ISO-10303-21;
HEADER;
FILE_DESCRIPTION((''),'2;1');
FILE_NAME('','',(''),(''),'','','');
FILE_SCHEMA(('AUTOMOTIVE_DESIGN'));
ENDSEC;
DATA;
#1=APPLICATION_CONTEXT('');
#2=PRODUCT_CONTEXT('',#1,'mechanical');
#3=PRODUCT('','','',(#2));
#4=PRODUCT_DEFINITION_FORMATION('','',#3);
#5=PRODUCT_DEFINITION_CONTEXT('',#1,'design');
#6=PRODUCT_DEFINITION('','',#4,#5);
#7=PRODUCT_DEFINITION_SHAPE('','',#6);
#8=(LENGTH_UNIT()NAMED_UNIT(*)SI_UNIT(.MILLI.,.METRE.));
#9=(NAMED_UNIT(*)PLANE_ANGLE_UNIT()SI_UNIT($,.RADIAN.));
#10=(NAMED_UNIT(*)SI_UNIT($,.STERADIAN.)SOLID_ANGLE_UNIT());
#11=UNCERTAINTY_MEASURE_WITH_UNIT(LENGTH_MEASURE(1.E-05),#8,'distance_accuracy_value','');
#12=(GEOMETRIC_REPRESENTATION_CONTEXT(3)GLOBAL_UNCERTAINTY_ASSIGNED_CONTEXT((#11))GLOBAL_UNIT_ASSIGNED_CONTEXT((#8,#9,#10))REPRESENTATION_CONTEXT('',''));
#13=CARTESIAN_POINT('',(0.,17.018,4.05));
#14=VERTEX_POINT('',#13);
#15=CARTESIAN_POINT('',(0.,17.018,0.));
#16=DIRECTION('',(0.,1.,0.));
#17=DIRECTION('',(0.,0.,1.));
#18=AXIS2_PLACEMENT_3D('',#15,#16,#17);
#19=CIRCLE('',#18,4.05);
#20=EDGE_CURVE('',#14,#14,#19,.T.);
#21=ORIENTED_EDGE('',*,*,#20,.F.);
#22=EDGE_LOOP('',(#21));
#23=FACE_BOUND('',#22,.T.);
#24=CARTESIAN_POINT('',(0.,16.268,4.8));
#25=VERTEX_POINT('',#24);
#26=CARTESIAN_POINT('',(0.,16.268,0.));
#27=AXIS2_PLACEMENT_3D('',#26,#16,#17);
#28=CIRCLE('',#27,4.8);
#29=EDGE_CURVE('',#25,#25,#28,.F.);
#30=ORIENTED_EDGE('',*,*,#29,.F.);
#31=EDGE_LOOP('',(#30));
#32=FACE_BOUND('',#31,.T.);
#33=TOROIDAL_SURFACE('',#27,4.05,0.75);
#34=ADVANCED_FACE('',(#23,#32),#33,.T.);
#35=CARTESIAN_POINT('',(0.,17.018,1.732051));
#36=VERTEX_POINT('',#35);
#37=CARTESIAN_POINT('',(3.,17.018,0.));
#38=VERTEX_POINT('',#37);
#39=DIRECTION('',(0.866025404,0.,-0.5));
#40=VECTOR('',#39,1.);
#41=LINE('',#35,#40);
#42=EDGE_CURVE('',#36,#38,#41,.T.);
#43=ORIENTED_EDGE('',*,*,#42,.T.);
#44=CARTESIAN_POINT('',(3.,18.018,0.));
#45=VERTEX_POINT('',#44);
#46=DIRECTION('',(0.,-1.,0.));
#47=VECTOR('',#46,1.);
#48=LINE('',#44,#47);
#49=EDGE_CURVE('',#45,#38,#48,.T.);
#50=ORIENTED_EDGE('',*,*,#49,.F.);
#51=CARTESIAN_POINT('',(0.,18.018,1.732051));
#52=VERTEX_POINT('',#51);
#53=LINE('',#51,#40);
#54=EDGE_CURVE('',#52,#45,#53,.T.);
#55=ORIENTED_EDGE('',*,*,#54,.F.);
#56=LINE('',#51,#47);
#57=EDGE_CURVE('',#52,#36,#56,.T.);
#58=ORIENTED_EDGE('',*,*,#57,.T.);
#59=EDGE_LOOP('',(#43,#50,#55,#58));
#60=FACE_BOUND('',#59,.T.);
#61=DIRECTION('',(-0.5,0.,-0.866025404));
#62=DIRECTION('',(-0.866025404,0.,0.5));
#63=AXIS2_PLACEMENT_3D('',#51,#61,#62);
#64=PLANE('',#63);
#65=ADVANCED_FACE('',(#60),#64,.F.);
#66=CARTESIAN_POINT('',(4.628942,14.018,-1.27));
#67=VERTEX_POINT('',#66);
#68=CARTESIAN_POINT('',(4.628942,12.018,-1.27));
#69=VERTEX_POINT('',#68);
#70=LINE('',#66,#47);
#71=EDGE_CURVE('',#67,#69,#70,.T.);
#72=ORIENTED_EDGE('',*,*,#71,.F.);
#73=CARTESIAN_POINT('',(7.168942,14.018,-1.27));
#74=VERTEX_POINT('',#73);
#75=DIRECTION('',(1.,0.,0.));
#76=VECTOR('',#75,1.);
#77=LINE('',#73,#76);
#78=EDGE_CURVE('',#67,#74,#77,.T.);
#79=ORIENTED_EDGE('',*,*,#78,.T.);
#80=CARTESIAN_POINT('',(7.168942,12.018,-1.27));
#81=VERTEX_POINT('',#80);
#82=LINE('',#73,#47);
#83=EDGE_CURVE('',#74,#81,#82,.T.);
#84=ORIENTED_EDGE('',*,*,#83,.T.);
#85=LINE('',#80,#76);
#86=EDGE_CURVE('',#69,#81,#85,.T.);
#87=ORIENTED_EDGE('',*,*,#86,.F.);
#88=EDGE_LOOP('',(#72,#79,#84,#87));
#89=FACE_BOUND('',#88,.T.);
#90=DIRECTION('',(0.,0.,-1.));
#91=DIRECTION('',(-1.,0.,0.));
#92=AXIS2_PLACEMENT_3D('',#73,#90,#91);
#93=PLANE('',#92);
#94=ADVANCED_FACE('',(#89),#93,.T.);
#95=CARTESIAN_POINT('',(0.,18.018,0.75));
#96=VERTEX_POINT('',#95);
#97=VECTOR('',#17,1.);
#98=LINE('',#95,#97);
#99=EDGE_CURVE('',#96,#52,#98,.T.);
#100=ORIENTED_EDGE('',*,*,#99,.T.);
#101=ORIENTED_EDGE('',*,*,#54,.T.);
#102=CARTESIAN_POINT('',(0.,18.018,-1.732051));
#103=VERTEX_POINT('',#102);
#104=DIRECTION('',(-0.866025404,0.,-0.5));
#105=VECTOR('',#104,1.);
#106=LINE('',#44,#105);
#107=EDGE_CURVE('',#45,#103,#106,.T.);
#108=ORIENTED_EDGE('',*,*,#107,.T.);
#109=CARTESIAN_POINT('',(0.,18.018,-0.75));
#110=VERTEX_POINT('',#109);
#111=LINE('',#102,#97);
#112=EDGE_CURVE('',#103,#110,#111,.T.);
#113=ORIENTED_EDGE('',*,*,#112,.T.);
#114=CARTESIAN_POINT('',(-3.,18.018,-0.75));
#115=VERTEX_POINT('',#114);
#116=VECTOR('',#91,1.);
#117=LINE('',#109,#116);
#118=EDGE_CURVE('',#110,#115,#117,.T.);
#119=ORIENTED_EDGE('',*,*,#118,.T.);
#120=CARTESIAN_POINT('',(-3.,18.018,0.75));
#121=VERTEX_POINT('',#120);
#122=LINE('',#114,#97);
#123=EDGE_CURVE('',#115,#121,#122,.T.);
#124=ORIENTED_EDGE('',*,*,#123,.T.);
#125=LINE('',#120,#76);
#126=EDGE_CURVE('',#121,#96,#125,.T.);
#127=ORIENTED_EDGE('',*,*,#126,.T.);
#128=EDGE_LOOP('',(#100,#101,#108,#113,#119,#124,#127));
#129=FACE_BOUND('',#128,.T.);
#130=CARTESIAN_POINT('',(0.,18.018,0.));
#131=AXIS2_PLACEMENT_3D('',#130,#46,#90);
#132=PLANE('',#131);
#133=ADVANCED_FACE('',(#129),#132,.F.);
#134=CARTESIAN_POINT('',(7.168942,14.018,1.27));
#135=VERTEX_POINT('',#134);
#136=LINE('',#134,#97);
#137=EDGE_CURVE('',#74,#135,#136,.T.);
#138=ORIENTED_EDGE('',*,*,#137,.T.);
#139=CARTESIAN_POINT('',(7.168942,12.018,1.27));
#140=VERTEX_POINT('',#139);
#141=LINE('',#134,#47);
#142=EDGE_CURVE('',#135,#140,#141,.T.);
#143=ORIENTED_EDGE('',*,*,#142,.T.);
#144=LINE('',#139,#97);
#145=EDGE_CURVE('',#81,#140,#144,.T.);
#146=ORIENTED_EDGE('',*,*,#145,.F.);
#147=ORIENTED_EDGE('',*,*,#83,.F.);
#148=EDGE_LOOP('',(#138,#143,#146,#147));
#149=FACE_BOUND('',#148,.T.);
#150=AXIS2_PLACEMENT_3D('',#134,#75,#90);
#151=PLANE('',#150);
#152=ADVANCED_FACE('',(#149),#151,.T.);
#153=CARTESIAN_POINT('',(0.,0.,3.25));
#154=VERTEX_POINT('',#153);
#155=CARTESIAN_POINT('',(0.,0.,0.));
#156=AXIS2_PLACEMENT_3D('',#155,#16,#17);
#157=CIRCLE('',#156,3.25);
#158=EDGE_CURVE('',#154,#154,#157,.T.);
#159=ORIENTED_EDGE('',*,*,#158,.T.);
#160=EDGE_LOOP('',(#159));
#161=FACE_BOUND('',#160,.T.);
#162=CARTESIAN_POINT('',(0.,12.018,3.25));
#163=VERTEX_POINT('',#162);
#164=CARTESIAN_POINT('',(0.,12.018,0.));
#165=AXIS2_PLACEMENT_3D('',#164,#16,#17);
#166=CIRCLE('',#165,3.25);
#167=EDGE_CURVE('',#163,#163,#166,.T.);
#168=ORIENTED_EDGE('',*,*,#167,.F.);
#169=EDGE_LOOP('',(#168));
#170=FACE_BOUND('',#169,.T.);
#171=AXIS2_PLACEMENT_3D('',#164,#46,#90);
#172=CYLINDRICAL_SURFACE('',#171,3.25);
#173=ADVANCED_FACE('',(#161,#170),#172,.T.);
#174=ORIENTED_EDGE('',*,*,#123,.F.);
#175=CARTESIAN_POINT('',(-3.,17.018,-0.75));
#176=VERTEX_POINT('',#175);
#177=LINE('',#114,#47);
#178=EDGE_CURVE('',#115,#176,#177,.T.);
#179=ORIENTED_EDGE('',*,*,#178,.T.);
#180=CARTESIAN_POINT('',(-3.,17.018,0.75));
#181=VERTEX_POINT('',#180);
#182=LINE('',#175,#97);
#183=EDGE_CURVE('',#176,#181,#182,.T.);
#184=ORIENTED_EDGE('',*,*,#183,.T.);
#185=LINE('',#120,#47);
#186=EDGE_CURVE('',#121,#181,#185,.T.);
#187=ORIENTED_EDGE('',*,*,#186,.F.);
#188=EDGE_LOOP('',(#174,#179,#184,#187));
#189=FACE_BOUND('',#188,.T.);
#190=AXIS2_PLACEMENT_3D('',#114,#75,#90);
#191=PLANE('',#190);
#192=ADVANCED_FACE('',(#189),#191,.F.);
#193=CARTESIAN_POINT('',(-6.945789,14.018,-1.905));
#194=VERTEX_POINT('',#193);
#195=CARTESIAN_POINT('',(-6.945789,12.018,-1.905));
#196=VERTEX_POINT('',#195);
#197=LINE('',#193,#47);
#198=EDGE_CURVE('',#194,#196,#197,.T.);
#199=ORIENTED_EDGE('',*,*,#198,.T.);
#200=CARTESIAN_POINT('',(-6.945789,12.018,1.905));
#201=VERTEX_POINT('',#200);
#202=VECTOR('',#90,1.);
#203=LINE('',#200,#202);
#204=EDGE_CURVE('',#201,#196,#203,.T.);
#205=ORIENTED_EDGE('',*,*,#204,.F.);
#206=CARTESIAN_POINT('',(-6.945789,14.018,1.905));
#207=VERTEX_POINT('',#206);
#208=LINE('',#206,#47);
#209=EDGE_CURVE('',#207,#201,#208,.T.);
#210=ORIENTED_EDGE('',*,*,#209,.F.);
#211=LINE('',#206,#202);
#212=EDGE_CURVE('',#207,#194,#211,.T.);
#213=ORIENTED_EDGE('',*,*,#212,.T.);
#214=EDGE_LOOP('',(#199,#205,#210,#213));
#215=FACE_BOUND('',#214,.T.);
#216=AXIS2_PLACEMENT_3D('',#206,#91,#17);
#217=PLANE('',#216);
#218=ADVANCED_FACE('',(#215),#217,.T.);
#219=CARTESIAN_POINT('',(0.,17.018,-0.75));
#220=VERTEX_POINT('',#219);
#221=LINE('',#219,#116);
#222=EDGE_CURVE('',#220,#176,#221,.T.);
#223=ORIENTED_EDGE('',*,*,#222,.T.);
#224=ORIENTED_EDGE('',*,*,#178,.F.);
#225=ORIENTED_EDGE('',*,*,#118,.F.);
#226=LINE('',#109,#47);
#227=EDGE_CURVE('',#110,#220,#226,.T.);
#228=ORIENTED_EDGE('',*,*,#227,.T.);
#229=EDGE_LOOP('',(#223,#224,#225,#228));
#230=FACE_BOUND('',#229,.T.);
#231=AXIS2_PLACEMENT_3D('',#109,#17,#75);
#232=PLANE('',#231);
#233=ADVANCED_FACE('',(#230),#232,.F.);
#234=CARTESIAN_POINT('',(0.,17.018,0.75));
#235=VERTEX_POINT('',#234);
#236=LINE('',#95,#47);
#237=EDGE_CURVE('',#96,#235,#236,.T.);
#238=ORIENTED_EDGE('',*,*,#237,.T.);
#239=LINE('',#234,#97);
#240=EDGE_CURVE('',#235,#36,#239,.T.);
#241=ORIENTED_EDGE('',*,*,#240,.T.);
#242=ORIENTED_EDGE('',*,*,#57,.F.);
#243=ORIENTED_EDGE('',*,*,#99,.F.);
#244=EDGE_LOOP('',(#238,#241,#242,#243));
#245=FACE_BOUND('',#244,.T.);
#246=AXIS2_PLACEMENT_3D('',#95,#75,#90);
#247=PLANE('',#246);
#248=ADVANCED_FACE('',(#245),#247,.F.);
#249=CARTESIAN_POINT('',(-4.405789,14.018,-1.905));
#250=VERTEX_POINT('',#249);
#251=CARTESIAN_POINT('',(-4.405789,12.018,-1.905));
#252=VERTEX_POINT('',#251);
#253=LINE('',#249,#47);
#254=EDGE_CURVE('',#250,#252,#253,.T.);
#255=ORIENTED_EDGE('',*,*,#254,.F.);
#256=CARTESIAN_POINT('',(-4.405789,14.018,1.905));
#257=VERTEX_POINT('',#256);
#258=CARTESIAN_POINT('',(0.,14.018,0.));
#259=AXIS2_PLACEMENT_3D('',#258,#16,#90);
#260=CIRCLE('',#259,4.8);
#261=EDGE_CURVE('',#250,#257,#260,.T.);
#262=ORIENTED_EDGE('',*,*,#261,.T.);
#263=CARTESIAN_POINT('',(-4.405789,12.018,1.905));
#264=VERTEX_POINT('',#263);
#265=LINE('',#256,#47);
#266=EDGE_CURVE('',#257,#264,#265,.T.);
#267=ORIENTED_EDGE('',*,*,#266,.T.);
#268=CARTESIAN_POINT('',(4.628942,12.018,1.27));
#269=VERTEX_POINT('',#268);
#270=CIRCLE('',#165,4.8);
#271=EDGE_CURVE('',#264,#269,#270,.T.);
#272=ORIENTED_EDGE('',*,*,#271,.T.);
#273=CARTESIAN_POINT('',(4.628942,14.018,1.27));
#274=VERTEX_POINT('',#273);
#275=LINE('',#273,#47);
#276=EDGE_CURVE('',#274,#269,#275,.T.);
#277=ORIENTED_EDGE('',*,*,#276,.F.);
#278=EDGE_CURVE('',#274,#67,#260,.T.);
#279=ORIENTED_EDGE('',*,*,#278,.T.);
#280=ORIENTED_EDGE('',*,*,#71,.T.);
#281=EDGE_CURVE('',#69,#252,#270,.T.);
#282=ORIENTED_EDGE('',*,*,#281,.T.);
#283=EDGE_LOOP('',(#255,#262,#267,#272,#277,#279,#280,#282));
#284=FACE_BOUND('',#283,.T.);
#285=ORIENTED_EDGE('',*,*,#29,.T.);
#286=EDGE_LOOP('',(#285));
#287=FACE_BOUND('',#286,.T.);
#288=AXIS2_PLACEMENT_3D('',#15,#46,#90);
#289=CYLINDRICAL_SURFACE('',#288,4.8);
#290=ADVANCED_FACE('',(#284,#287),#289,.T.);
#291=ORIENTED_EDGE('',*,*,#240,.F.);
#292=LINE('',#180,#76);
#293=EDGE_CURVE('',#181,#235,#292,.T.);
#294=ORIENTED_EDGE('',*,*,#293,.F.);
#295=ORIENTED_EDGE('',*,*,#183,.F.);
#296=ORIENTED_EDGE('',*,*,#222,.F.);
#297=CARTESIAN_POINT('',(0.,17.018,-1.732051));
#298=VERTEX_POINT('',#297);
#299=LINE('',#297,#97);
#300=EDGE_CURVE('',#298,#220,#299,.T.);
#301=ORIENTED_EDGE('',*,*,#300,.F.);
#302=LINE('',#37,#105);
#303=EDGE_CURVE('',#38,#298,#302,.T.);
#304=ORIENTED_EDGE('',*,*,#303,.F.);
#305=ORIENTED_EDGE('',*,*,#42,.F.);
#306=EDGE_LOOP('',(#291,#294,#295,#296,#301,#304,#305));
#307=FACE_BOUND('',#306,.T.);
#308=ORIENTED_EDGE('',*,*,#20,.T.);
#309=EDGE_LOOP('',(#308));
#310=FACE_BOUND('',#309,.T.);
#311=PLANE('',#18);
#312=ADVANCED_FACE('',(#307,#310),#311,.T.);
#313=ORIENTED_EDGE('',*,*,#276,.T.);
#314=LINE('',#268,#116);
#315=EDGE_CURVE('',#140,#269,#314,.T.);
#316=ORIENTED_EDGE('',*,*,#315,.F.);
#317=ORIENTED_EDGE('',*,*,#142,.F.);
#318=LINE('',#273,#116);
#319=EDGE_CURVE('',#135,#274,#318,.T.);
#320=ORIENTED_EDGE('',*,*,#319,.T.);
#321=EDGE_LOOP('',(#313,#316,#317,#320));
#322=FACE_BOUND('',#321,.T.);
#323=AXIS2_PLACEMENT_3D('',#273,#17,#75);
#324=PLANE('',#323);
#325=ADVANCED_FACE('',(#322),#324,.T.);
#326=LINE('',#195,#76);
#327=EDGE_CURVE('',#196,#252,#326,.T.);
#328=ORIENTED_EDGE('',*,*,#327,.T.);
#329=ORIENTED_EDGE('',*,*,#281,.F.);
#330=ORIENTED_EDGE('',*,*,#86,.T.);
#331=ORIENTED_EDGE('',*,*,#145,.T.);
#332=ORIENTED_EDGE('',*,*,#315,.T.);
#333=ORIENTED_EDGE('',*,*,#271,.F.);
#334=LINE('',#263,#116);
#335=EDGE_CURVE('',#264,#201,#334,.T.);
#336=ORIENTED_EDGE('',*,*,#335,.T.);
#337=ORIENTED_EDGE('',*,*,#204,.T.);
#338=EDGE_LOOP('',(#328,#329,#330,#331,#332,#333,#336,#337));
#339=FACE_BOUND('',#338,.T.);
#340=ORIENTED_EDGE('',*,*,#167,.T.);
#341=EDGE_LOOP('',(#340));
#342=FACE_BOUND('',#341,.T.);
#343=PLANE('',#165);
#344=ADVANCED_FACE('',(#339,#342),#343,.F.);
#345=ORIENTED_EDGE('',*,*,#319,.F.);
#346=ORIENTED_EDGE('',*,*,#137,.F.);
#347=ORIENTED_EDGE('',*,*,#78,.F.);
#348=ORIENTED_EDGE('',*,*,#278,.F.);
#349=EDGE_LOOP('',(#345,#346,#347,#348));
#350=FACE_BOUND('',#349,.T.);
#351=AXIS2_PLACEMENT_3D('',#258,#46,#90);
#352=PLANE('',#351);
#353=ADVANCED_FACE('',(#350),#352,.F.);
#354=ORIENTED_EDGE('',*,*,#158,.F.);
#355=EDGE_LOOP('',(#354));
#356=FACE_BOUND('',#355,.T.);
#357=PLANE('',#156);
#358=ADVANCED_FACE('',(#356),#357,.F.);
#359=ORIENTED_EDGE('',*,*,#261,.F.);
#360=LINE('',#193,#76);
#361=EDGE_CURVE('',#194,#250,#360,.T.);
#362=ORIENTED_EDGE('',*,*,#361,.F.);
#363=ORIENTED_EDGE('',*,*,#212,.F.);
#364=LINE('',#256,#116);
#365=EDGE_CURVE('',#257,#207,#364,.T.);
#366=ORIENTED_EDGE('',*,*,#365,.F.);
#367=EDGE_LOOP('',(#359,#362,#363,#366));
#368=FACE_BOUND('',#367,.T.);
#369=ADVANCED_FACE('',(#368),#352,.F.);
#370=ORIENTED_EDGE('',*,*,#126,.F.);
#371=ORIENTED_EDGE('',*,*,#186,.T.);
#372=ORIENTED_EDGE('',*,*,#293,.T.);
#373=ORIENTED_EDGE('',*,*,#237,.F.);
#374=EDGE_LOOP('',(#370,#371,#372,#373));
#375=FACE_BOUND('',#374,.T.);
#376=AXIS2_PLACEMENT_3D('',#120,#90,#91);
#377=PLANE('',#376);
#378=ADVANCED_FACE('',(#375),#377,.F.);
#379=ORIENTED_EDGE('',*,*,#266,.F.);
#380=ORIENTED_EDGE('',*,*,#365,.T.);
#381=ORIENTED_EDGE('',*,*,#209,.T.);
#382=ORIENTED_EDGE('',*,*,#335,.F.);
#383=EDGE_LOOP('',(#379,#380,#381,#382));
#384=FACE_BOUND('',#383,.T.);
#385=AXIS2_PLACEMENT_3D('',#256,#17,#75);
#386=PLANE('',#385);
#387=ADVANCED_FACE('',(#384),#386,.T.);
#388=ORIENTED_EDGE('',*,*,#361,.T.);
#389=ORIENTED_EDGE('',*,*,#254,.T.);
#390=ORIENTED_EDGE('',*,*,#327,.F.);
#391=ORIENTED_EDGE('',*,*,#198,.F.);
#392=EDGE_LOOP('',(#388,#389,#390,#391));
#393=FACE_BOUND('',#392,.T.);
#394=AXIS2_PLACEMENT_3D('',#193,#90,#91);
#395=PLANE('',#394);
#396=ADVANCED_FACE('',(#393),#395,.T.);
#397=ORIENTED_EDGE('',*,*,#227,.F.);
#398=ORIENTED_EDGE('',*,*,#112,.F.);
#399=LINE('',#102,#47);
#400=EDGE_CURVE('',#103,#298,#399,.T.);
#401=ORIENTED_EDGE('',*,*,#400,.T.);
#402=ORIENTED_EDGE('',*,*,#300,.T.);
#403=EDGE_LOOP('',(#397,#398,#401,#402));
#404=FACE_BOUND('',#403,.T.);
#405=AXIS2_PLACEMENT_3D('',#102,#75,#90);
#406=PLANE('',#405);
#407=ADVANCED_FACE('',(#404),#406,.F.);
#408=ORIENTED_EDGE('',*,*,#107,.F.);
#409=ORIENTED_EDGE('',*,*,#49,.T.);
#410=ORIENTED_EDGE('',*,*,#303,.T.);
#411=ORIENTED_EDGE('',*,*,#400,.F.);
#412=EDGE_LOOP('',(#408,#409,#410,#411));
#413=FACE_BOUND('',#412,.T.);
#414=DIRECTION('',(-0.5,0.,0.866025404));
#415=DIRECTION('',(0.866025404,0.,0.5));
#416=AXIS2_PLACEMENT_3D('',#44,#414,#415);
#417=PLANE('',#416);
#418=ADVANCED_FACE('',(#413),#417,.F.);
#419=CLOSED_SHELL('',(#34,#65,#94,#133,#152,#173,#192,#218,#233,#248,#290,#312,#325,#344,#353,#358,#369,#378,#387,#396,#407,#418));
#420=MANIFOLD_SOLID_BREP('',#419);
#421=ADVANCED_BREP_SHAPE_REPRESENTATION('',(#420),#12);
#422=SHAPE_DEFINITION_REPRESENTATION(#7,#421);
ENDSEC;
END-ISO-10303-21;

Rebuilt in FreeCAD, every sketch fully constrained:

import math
import FreeCAD as App
import Part
import Sketcher
Q = App.Units.Quantity


def edges_at(feature, points):
    """Names of the edges that pass closest to the given points."""
    edges = feature.Shape.Edges
    near = lambda p: min(range(len(edges)), key=lambda i: edges[i].distToShape(Part.Vertex(*p))[0])
    return sorted({f"Edge{near(p) + 1}" for p in points})

doc = App.newDocument("Part")
body = doc.addObject("PartDesign::Body", "Body")

# Sketch on XZ plane
sketch1 = body.newObject("Sketcher::SketchObject", "Sketch")
sketch1.AttachmentSupport = (doc.getObject("XZ_Plane"), [""])
sketch1.MapMode = "FlatFace"
sketch1.addGeometry(Part.Circle(App.Vector(0, 0, 0), App.Vector(0, 0, 1), 3.2), False)
sketch1.addConstraint([
    Sketcher.Constraint("Coincident", 0, 3, -1, 1),
    Sketcher.Constraint("Diameter", 0, 6.5),
])
pad1 = body.newObject("PartDesign::Pad", "Pad")
pad1.Profile = sketch1
pad1.Length = 12.018
pad1.Reversed = True

# Sketch on XZ plane
sketch2 = body.newObject("Sketcher::SketchObject", "Sketch001")
sketch2.AttachmentSupport = (doc.getObject("XZ_Plane"), [""])
sketch2.MapMode = "FlatFace"
sketch2.AttachmentOffset = App.Placement(App.Vector(0, 0, -12.018), App.Rotation())
sketch2.addGeometry(Part.Circle(App.Vector(0, 0, 0), App.Vector(0, 0, 1), 4.8), False)
sketch2.addConstraint([
    Sketcher.Constraint("Coincident", 0, 3, -1, 1),
    Sketcher.Constraint("Diameter", 0, 9.6),
])
pad2 = body.newObject("PartDesign::Pad", "Pad001")
pad2.Profile = sketch2
pad2.Length = 5
pad2.Reversed = True
doc.recompute()

fillet = body.newObject("PartDesign::Fillet", "Fillet")
fillet.Base = (pad2, edges_at(pad2, [(0, 17.018, -4.8)]))
fillet.Radius = 0.75

# Sketch on XZ plane
sketch3 = body.newObject("Sketcher::SketchObject", "Sketch002")
sketch3.AttachmentSupport = (doc.getObject("XZ_Plane"), [""])
sketch3.MapMode = "FlatFace"
sketch3.AttachmentOffset = App.Placement(App.Vector(0, 0, -17.018), App.Rotation())
sketch3.addGeometry([
    Part.LineSegment(App.Vector(0, -0.8, 0), App.Vector(-3, -0.8, 0)),  # 0
    Part.LineSegment(App.Vector(-3, -0.8, 0), App.Vector(-3, 0.8, 0)),  # 1
    Part.LineSegment(App.Vector(-3, 0.8, 0), App.Vector(0, 0.8, 0)),  # 2
    Part.LineSegment(App.Vector(0, 0.8, 0), App.Vector(0, 1.7, 0)),  # 3
    Part.LineSegment(App.Vector(0, 1.7, 0), App.Vector(3, 0, 0)),  # 4
    Part.LineSegment(App.Vector(3, 0, 0), App.Vector(0, -1.7, 0)),  # 5
    Part.LineSegment(App.Vector(0, -1.7, 0), App.Vector(0, -0.8, 0)),  # 6
], False)
sketch3.addConstraint([
    Sketcher.Constraint("Coincident", 0, 2, 1, 1),
    Sketcher.Constraint("Coincident", 1, 2, 2, 1),
    Sketcher.Constraint("Coincident", 2, 2, 3, 1),
    Sketcher.Constraint("Coincident", 3, 2, 4, 1),
    Sketcher.Constraint("Coincident", 4, 2, 5, 1),
    Sketcher.Constraint("Coincident", 5, 2, 6, 1),
    Sketcher.Constraint("Coincident", 6, 2, 0, 1),
    Sketcher.Constraint("Horizontal", 0),
    Sketcher.Constraint("Vertical", 1),
    Sketcher.Constraint("Horizontal", 2),
    Sketcher.Constraint("Vertical", 3),
    Sketcher.Constraint("Vertical", 6),
    Sketcher.Constraint("Symmetric", 3, 2, 5, 2, -1, 1),
    Sketcher.Constraint("Symmetric", 2, 2, 6, 2, -1),
    Sketcher.Constraint("PointOnObject", 4, 2, -1),
    Sketcher.Constraint("DistanceX", 0, 2, 0, 1, 3.0),
    Sketcher.Constraint("Angle", 4, Q("-30 deg")),
    Sketcher.Constraint("DistanceY", 1, 1, 1, 2, 1.5),
    Sketcher.Constraint("DistanceX", -1, 1, 4, 2, 3.0),
])
pad3 = body.newObject("PartDesign::Pad", "Pad002")
pad3.Profile = sketch3
pad3.Length = 1
pad3.Reversed = True

# Sketch on XZ plane
sketch4 = body.newObject("Sketcher::SketchObject", "Sketch003")
sketch4.AttachmentSupport = (doc.getObject("XZ_Plane"), [""])
sketch4.MapMode = "FlatFace"
sketch4.AttachmentOffset = App.Placement(App.Vector(0, 0, -12.018), App.Rotation())
sketch4.addGeometry([
    Part.LineSegment(App.Vector(-4.4, 1.9, 0), App.Vector(-6.9, 1.9, 0)),  # 0
    Part.LineSegment(App.Vector(-6.9, 1.9, 0), App.Vector(-6.9, -1.9, 0)),  # 1
    Part.LineSegment(App.Vector(-6.9, -1.9, 0), App.Vector(-4.4, -1.9, 0)),  # 2
    Part.ArcOfCircle(Part.Circle(App.Vector(0, 0, 0), App.Vector(0, 0, 1), 4.8), math.radians(157), math.radians(203)),  # 3
    Part.LineSegment(App.Vector(7.2, 1.3, 0), App.Vector(4.6, 1.3, 0)),  # 4
    Part.ArcOfCircle(Part.Circle(App.Vector(0, 0, 0), App.Vector(0, 0, 1), 4.8), math.radians(-15), math.radians(15)),  # 5
    Part.LineSegment(App.Vector(4.6, -1.3, 0), App.Vector(7.2, -1.3, 0)),  # 6
    Part.LineSegment(App.Vector(7.2, -1.3, 0), App.Vector(7.2, 1.3, 0)),  # 7
], False)
sketch4.addConstraint([
    Sketcher.Constraint("Coincident", 0, 2, 1, 1),
    Sketcher.Constraint("Coincident", 1, 2, 2, 1),
    Sketcher.Constraint("Coincident", 2, 2, 3, 2),
    Sketcher.Constraint("Coincident", 3, 1, 0, 1),
    Sketcher.Constraint("Coincident", 4, 2, 5, 2),
    Sketcher.Constraint("Coincident", 5, 1, 6, 1),
    Sketcher.Constraint("Coincident", 6, 2, 7, 1),
    Sketcher.Constraint("Coincident", 7, 2, 4, 1),
    Sketcher.Constraint("Horizontal", 0),
    Sketcher.Constraint("Vertical", 1),
    Sketcher.Constraint("Horizontal", 2),
    Sketcher.Constraint("Horizontal", 4),
    Sketcher.Constraint("Horizontal", 6),
    Sketcher.Constraint("Vertical", 7),
    Sketcher.Constraint("Coincident", 3, 3, -1, 1),
    Sketcher.Constraint("Coincident", 5, 3, -1, 1),
    Sketcher.Constraint("Equal", 3, 5),
    Sketcher.Constraint("Vertical", 2, 2, 3, 1),
    Sketcher.Constraint("Vertical", 4, 2, 5, 1),
    Sketcher.Constraint("Equal", 2, 4),
    Sketcher.Constraint("Equal", 6, 7),
    Sketcher.Constraint("Radius", 3, 4.8),
    Sketcher.Constraint("DistanceX", 0, 2, 0, 1, 2.54),
    Sketcher.Constraint("DistanceY", 1, 2, 1, 1, 3.81),
])
pad4 = body.newObject("PartDesign::Pad", "Pad003")
pad4.Profile = sketch4
pad4.Length = 2
pad4.Reversed = True

doc.recompute()
